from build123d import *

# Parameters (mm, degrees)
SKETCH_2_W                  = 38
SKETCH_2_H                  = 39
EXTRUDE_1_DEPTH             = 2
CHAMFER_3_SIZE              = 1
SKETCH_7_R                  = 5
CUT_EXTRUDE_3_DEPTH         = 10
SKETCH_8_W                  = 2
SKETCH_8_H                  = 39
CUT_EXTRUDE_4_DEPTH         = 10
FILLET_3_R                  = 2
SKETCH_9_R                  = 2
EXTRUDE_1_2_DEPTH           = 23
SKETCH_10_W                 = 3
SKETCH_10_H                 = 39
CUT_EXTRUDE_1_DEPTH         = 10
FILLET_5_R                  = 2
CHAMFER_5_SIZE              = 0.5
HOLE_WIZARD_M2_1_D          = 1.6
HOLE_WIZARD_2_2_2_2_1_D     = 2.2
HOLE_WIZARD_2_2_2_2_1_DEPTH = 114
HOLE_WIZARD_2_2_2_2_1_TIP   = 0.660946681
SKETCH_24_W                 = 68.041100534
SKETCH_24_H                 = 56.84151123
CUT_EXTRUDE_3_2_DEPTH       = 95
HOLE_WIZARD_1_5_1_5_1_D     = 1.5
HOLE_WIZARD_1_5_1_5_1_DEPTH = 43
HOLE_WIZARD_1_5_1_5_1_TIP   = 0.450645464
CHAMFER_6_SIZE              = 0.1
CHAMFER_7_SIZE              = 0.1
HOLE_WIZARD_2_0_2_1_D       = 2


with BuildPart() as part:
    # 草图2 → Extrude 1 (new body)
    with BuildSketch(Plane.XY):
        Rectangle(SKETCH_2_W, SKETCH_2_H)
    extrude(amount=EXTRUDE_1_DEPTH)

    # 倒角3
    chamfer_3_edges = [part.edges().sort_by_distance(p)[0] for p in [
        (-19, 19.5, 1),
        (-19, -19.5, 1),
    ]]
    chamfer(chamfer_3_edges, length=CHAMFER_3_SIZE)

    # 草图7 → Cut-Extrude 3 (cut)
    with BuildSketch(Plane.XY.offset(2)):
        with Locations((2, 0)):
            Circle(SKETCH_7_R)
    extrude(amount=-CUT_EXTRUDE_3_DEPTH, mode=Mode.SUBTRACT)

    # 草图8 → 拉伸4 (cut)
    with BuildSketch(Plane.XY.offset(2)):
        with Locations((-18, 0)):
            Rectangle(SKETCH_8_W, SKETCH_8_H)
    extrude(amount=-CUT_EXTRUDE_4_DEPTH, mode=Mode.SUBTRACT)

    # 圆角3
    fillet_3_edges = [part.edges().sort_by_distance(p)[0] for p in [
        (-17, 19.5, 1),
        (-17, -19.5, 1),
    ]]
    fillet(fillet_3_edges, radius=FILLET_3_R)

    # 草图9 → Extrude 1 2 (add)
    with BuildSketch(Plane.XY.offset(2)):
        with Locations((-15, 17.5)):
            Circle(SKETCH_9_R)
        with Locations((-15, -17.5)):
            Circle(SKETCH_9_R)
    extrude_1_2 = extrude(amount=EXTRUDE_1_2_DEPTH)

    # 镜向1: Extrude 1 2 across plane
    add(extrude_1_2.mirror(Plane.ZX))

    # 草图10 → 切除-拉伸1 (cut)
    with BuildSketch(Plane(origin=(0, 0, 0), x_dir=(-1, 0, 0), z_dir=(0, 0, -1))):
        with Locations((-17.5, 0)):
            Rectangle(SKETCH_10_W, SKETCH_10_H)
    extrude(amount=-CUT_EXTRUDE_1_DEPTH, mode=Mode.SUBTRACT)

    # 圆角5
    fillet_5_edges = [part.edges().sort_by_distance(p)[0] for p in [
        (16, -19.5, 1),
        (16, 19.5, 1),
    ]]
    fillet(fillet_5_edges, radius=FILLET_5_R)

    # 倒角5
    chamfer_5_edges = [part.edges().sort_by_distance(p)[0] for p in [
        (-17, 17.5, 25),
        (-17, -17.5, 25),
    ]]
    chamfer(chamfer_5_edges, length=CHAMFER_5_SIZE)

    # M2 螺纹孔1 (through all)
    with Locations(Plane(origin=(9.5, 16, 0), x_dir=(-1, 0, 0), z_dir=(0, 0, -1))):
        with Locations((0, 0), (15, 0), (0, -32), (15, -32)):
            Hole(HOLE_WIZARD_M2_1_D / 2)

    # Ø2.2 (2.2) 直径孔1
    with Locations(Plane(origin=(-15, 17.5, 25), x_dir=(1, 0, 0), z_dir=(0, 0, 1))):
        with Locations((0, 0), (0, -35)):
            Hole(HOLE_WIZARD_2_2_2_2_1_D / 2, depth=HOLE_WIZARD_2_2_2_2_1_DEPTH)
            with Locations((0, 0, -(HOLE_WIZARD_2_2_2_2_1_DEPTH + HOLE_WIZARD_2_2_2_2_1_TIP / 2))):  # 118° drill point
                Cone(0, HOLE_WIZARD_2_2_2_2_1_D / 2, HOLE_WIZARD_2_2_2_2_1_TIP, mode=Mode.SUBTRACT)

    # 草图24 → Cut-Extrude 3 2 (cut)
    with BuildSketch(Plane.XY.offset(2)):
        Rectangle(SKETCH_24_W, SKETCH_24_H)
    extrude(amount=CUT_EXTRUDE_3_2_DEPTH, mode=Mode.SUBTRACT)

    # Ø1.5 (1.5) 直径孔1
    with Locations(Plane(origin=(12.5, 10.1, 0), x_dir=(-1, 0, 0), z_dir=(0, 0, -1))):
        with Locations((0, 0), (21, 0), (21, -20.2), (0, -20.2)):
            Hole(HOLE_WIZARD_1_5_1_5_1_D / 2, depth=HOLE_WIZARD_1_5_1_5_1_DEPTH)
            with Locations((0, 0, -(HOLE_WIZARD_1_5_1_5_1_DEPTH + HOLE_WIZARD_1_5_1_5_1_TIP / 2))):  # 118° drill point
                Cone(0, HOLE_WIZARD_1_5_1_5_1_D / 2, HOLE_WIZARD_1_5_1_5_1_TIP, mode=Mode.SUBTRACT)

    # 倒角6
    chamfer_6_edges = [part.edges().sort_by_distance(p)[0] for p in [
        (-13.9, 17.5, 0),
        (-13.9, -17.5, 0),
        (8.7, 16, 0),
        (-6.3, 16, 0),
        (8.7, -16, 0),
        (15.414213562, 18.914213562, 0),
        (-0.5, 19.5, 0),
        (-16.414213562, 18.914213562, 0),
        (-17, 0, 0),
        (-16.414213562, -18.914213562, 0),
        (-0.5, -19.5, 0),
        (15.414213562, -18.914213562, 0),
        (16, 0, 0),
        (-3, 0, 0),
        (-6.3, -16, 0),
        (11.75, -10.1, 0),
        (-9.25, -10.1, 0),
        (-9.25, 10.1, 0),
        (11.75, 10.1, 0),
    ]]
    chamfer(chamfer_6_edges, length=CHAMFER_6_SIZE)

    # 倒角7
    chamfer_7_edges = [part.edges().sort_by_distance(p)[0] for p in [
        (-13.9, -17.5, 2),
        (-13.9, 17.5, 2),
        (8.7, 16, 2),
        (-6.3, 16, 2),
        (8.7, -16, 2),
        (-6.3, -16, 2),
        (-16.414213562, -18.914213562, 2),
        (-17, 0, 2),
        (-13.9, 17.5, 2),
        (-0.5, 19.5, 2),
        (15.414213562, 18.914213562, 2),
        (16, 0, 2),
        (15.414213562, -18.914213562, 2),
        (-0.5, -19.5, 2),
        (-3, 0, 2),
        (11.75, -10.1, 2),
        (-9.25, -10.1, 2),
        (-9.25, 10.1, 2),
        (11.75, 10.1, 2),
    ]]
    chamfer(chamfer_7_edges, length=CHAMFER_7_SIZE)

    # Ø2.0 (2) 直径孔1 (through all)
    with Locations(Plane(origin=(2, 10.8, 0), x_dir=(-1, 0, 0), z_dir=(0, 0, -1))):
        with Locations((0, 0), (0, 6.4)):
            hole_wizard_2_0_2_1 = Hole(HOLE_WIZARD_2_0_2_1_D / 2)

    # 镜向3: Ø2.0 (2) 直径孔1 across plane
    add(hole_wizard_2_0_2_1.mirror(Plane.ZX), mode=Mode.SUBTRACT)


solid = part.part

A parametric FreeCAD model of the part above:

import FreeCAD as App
import Part
import Sketcher


def edges_at(feature, points):
    """Names of the edges that pass closest to the given points."""
    edges = feature.Shape.Edges
    near = lambda p: min(range(len(edges)), key=lambda i: edges[i].distToShape(Part.Vertex(*p))[0])
    return sorted({f"Edge{near(p) + 1}" for p in points})


def add_polygon(sketch, points):
    """Adds a closed chain of lines whose ends are joined by coincident constraints."""
    first, n = sketch.GeometryCount, len(points)
    for a, b in zip(points, points[1:] + points[:1]):
        sketch.addGeometry(Part.LineSegment(App.Vector(*a, 0), App.Vector(*b, 0)), False)
    for i in range(n):
        sketch.addConstraint(Sketcher.Constraint("Coincident", first + i, 2, first + (i + 1) % n, 1))

doc = App.newDocument("Part")
body = doc.addObject("PartDesign::Body", "Body")

sketch1 = body.newObject("Sketcher::SketchObject", "Sketch")
sketch1.AttachmentSupport = (doc.getObject("XY_Plane"), [""])
sketch1.MapMode = "FlatFace"
add_polygon(sketch1, [(-19, 20), (-19, -20), (19, -20), (19, 20)])
sketch1.addConstraint([
    Sketcher.Constraint("Vertical", 0),
    Sketcher.Constraint("Horizontal", 1),
    Sketcher.Constraint("Vertical", 2),
    Sketcher.Constraint("Horizontal", 3),
    Sketcher.Constraint("Symmetric", 0, 2, 2, 2, -1, 1),
    Sketcher.Constraint("DistanceX", 1, 1, 1, 2, 38.0),
    Sketcher.Constraint("DistanceY", 0, 2, 0, 1, 39.0),
])
pad1 = body.newObject("PartDesign::Pad", "Pad")
pad1.Profile = sketch1
pad1.Length = 2
doc.recompute()

chamfer = body.newObject("PartDesign::Chamfer", "Chamfer")
chamfer.Base = (pad1, edges_at(pad1, [(-19, 19.5, 1), (-19, -19.5, 1)]))
chamfer.Size = 1

sketch2 = body.newObject("Sketcher::SketchObject", "Sketch001")
sketch2.AttachmentSupport = (doc.getObject("XY_Plane"), [""])
sketch2.MapMode = "FlatFace"
sketch2.AttachmentOffset = App.Placement(App.Vector(0, 0, 2), App.Rotation())
sketch2.addGeometry(Part.Circle(App.Vector(2, 0, 0), App.Vector(0, 0, 1), 5), False)
sketch2.addConstraint([
    Sketcher.Constraint("PointOnObject", 0, 3, -1),
    Sketcher.Constraint("Diameter", 0, 10.0),
    Sketcher.Constraint("DistanceX", -1, 1, 0, 3, 2.0),
])
pocket1 = body.newObject("PartDesign::Pocket", "Pocket")
pocket1.Profile = sketch2
pocket1.Length = 10

sketch3 = body.newObject("Sketcher::SketchObject", "Sketch002")
sketch3.AttachmentSupport = (doc.getObject("XY_Plane"), [""])
sketch3.MapMode = "FlatFace"
sketch3.AttachmentOffset = App.Placement(App.Vector(0, 0, 2), App.Rotation())
add_polygon(sketch3, [(-19, 19.5), (-19, -19.5), (-17, -19.5), (-17, 19.5)])
sketch3.addConstraint([
    Sketcher.Constraint("Vertical", 0),
    Sketcher.Constraint("Horizontal", 1),
    Sketcher.Constraint("Vertical", 2),
    Sketcher.Constraint("Horizontal", 3),
    Sketcher.Constraint("DistanceX", 1, 1, 1, 2, 2.0),
    Sketcher.Constraint("DistanceY", 0, 2, 0, 1, 39.0),
    Sketcher.Constraint("DistanceX", 0, 2, -1, 1, 19.0),
    Sketcher.Constraint("DistanceY", 0, 2, -1, 1, 19.5),
])
pocket2 = body.newObject("PartDesign::Pocket", "Pocket001")
pocket2.Profile = sketch3
pocket2.Length = 10
doc.recompute()

fillet = body.newObject("PartDesign::Fillet", "Fillet")
fillet.Base = (pocket2, edges_at(pocket2, [(-17, 19.5, 1), (-17, -19.5, 1)]))
fillet.Radius = 2

sketch4 = body.newObject("Sketcher::SketchObject", "Sketch003")
sketch4.AttachmentSupport = (doc.getObject("XY_Plane"), [""])
sketch4.MapMode = "FlatFace"
sketch4.AttachmentOffset = App.Placement(App.Vector(0, 0, 2), App.Rotation())
sketch4.addGeometry([
    Part.Circle(App.Vector(-15, 17.5, 0), App.Vector(0, 0, 1), 2),
    Part.Circle(App.Vector(-15, -17.5, 0), App.Vector(0, 0, 1), 2),
], False)
sketch4.addConstraint([
    Sketcher.Constraint("Equal", 0, 1),
    Sketcher.Constraint("Symmetric", 0, 3, 1, 3, -1),
    Sketcher.Constraint("Diameter", 0, 4.0),
    Sketcher.Constraint("DistanceX", 0, 3, -1, 1, 15.0),
    Sketcher.Constraint("DistanceY", 1, 3, 0, 3, 35.0),
])
pad2 = body.newObject("PartDesign::Pad", "Pad001")
pad2.Profile = sketch4
pad2.Length = 23
doc.recompute()

mirrored = body.newObject("PartDesign::Mirrored", "Mirrored")
mirrored.Originals = [pad2]
mirrored.MirrorPlane = (doc.getObject("XZ_Plane"), [""])
body.Tip = mirrored

sketch5 = body.newObject("Sketcher::SketchObject", "Sketch004")
sketch5.AttachmentSupport = (doc.getObject("XY_Plane"), [""])
sketch5.MapMode = "FlatFace"
add_polygon(sketch5, [(19, 19.5), (19, -19.5), (16, -19.5), (16, 19.5)])
sketch5.addConstraint([
    Sketcher.Constraint("Vertical", 0),
    Sketcher.Constraint("Horizontal", 1),
    Sketcher.Constraint("Vertical", 2),
    Sketcher.Constraint("Horizontal", 3),
    Sketcher.Constraint("DistanceX", 1, 2, 1, 1, 3.0),
    Sketcher.Constraint("DistanceY", 0, 2, 0, 1, 39.0),
    Sketcher.Constraint("DistanceX", -1, 1, 0, 2, 19.0),
    Sketcher.Constraint("DistanceY", 0, 2, -1, 1, 19.5),
])
pocket3 = body.newObject("PartDesign::Pocket", "Pocket002")
pocket3.Profile = sketch5
pocket3.Length = 10
pocket3.Reversed = True
doc.recompute()

fillet2 = body.newObject("PartDesign::Fillet", "Fillet001")
fillet2.Base = (pocket3, edges_at(pocket3, [(16, -19.5, 1), (16, 19.5, 1)]))
fillet2.Radius = 2
doc.recompute()

chamfer2 = body.newObject("PartDesign::Chamfer", "Chamfer001")
chamfer2.Base = (fillet2, edges_at(fillet2, [(-17, 17.5, 25), (-17, -17.5, 25)]))
chamfer2.Size = 0.5

sketch6 = body.newObject("Sketcher::SketchObject", "Sketch005")
sketch6.AttachmentSupport = (doc.getObject("XY_Plane"), [""])
sketch6.MapMode = "FlatFace"
sketch6.addGeometry([
    Part.Circle(App.Vector(9.5, 16, 0), App.Vector(0, 0, 1), 0.8),
    Part.Circle(App.Vector(-5.5, 16, 0), App.Vector(0, 0, 1), 0.8),
    Part.Circle(App.Vector(9.5, -16, 0), App.Vector(0, 0, 1), 0.8),
    Part.Circle(App.Vector(-5.5, -16, 0), App.Vector(0, 0, 1), 0.8),
], False)
sketch6.addConstraint([
    Sketcher.Constraint("Equal", 0, 1),
    Sketcher.Constraint("Equal", 1, 2),
    Sketcher.Constraint("Equal", 2, 3),
    Sketcher.Constraint("Symmetric", 0, 3, 2, 3, -1),
    Sketcher.Constraint("Symmetric", 1, 3, 3, 3, -1),
    Sketcher.Constraint("Horizontal", 0, 3, 1, 3),
    Sketcher.Constraint("Diameter", 0, 1.6),
    Sketcher.Constraint("DistanceY", -1, 1, 0, 3, 16.0),
    Sketcher.Constraint("DistanceX", 1, 3, 0, 3, 15.0),
    Sketcher.Constraint("DistanceX", -1, 1, 0, 3, 9.5),
])
doc.recompute()
hole = body.newObject("PartDesign::Hole", "Hole")
hole.Profile = sketch6
hole.ThreadType = "None"
hole.Diameter = 1.6
hole.DepthType = "ThroughAll"
hole.Reversed = True

sketch7 = body.newObject("Sketcher::SketchObject", "Sketch006")
sketch7.AttachmentSupport = (doc.getObject("XY_Plane"), [""])
sketch7.MapMode = "FlatFace"
sketch7.AttachmentOffset = App.Placement(App.Vector(0, 0, 25), App.Rotation())
sketch7.addGeometry([
    Part.Circle(App.Vector(-15, 17.5, 0), App.Vector(0, 0, 1), 1.1),
    Part.Circle(App.Vector(-15, -17.5, 0), App.Vector(0, 0, 1), 1.1),
], False)
sketch7.addConstraint([
    Sketcher.Constraint("Equal", 0, 1),
    Sketcher.Constraint("Symmetric", 0, 3, 1, 3, -1),
    Sketcher.Constraint("Diameter", 0, 2.2),
    Sketcher.Constraint("DistanceX", 0, 3, -1, 1, 15.0),
    Sketcher.Constraint("DistanceY", 1, 3, 0, 3, 35.0),
])
doc.recompute()
hole2 = body.newObject("PartDesign::Hole", "Hole001")
hole2.Profile = sketch7
hole2.ThreadType = "None"
hole2.Diameter = 2.2
hole2.DepthType = "Dimension"
hole2.Depth = 114
hole2.DrillPoint = "Angled"
hole2.DrillPointAngle = 118

sketch8 = body.newObject("Sketcher::SketchObject", "Sketch007")
sketch8.AttachmentSupport = (doc.getObject("XY_Plane"), [""])
sketch8.MapMode = "FlatFace"
sketch8.AttachmentOffset = App.Placement(App.Vector(0, 0, 2), App.Rotation())
add_polygon(sketch8, [(-34, 28), (-34, -28), (34, -28), (34, 28)])
sketch8.addConstraint([
    Sketcher.Constraint("Vertical", 0),
    Sketcher.Constraint("Horizontal", 1),
    Sketcher.Constraint("Vertical", 2),
    Sketcher.Constraint("Horizontal", 3),
    Sketcher.Constraint("Symmetric", 0, 2, 2, 2, -1, 1),
    Sketcher.Constraint("DistanceX", 1, 1, 1, 2, 68.041101),
    Sketcher.Constraint("DistanceY", 0, 2, 0, 1, 56.841511),
])
pocket4 = body.newObject("PartDesign::Pocket", "Pocket003")
pocket4.Profile = sketch8
pocket4.Length = 95
pocket4.Reversed = True

sketch9 = body.newObject("Sketcher::SketchObject", "Sketch008")
sketch9.AttachmentSupport = (doc.getObject("XY_Plane"), [""])
sketch9.MapMode = "FlatFace"
sketch9.addGeometry([
    Part.Circle(App.Vector(12.5, 10.1, 0), App.Vector(0, 0, 1), 0.8),
    Part.Circle(App.Vector(-8.5, 10.1, 0), App.Vector(0, 0, 1), 0.8),
    Part.Circle(App.Vector(-8.5, -10.1, 0), App.Vector(0, 0, 1), 0.8),
    Part.Circle(App.Vector(12.5, -10.1, 0), App.Vector(0, 0, 1), 0.8),
], False)
sketch9.addConstraint([
    Sketcher.Constraint("Equal", 0, 1),
    Sketcher.Constraint("Equal", 1, 2),
    Sketcher.Constraint("Equal", 2, 3),
    Sketcher.Constraint("Symmetric", 1, 3, 2, 3, -1),
    Sketcher.Constraint("Symmetric", 0, 3, 3, 3, -1),
    Sketcher.Constraint("Horizontal", 0, 3, 1, 3),
    Sketcher.Constraint("Diameter", 0, 1.5),
    Sketcher.Constraint("DistanceX", 1, 3, 0, 3, 21.0),
    Sketcher.Constraint("DistanceX", -1, 1, 0, 3, 12.5),
    Sketcher.Constraint("DistanceY", -1, 1, 0, 3, 10.1),
])
doc.recompute()
hole3 = body.newObject("PartDesign::Hole", "Hole002")
hole3.Profile = sketch9
hole3.ThreadType = "None"
hole3.Diameter = 1.5
hole3.DepthType = "Dimension"
hole3.Depth = 43
hole3.DrillPoint = "Angled"
hole3.DrillPointAngle = 118
hole3.Reversed = True
doc.recompute()

chamfer3 = body.newObject("PartDesign::Chamfer", "Chamfer002")
chamfer3.Base = (hole3, edges_at(hole3, [
    (-13.9, 17.5, 0),
    (-13.9, -17.5, 0),
    (8.7, 16, 0),
    (-6.3, 16, 0),
    (8.7, -16, 0),
    (15.414, 18.914, 0),
    (-0.5, 19.5, 0),
    (-16.414, 18.914, 0),
    (-17, 0, 0),
    (-16.414, -18.914, 0),
    (-0.5, -19.5, 0),
    (15.414, -18.914, 0),
    (16, 0, 0),
    (-3, 0, 0),
    (-6.3, -16, 0),
    (11.75, -10.1, 0),
    (-9.25, -10.1, 0),
    (-9.25, 10.1, 0),
    (11.75, 10.1, 0),
]))
chamfer3.Size = 0.1
doc.recompute()

chamfer4 = body.newObject("PartDesign::Chamfer", "Chamfer003")
chamfer4.Base = (chamfer3, edges_at(chamfer3, [
    (-13.9, -17.5, 2),
    (-13.9, 17.5, 2),
    (8.7, 16, 2),
    (-6.3, 16, 2),
    (8.7, -16, 2),
    (-6.3, -16, 2),
    (-16.414, -18.914, 2),
    (-17, 0, 2),
    (-13.9, 17.5, 2),
    (-0.5, 19.5, 2),
    (15.414, 18.914, 2),
    (16, 0, 2),
    (15.414, -18.914, 2),
    (-0.5, -19.5, 2),
    (-3, 0, 2),
    (11.75, -10.1, 2),
    (-9.25, -10.1, 2),
    (-9.25, 10.1, 2),
    (11.75, 10.1, 2),
]))
chamfer4.Size = 0.1

sketch10 = body.newObject("Sketcher::SketchObject", "Sketch009")
sketch10.AttachmentSupport = (doc.getObject("XY_Plane"), [""])
sketch10.MapMode = "FlatFace"
sketch10.addGeometry([
    Part.Circle(App.Vector(2, 10.8, 0), App.Vector(0, 0, 1), 1),
    Part.Circle(App.Vector(2, 17.2, 0), App.Vector(0, 0, 1), 1),
], False)
sketch10.addConstraint([
    Sketcher.Constraint("Equal", 0, 1),
    Sketcher.Constraint("Vertical", 0, 3, 1, 3),
    Sketcher.Constraint("Diameter", 0, 2.0),
    Sketcher.Constraint("DistanceX", -1, 1, 0, 3, 2.0),
    Sketcher.Constraint("DistanceY", -1, 1, 0, 3, 10.8),
    Sketcher.Constraint("DistanceY", -1, 1, 1, 3, 17.2),
])
doc.recompute()
hole4 = body.newObject("PartDesign::Hole", "Hole003")
hole4.Profile = sketch10
hole4.ThreadType = "None"
hole4.Diameter = 2
hole4.DepthType = "ThroughAll"
hole4.Reversed = True
doc.recompute()

mirrored2 = body.newObject("PartDesign::Mirrored", "Mirrored001")
mirrored2.Originals = [hole4]
mirrored2.MirrorPlane = (doc.getObject("XZ_Plane"), [""])
body.Tip = mirrored2

doc.recompute()
